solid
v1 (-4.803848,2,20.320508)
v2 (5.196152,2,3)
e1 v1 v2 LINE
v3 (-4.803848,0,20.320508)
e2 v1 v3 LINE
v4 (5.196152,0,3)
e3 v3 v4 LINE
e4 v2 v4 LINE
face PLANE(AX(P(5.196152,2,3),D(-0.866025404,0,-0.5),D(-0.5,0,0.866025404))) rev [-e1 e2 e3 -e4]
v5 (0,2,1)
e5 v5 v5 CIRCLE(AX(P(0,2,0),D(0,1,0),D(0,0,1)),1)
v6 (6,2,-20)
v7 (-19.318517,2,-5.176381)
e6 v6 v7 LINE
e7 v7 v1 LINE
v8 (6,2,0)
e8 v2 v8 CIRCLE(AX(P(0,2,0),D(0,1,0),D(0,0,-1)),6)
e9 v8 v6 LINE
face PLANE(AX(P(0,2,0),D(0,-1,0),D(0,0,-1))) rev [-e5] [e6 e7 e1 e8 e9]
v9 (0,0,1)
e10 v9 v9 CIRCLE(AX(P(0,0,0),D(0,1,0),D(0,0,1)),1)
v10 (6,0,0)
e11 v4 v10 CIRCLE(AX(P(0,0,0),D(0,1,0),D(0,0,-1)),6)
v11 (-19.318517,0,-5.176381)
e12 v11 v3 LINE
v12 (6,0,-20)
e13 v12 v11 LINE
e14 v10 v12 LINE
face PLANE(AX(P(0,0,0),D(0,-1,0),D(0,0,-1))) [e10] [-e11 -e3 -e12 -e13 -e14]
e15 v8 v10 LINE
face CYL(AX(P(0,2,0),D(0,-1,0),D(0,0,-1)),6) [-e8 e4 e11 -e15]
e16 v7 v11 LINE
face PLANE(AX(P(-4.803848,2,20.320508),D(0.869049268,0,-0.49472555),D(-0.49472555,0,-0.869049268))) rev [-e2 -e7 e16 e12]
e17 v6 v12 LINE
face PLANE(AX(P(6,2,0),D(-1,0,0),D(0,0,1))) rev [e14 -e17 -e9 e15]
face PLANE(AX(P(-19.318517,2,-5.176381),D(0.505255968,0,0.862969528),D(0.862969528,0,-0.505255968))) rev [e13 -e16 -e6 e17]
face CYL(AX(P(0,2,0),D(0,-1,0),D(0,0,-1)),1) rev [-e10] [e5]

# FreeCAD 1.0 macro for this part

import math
import FreeCAD as App
import Part
import Sketcher

V = App.Vector
Q = App.Units.Quantity

doc = App.newDocument("Part")
body = doc.addObject("PartDesign::Body", "Body")

# Sketch on XZ plane
sketch1 = body.newObject("Sketcher::SketchObject", "Sketch")
sketch1.AttachmentSupport = (doc.getObject("XZ_Plane"), [""])
sketch1.MapMode = "FlatFace"
sketch1.addGeometry([
    Part.LineSegment(V(6, 0, 0), V(6, -20, 0)),  # 0
    Part.LineSegment(V(6, -20, 0), V(-19.3, -5.2, 0)),  # 1
    Part.LineSegment(V(-19.3, -5.2, 0), V(-4.8, 20.3, 0)),  # 2
    Part.LineSegment(V(-4.8, 20.3, 0), V(5.2, 3, 0)),  # 3
    Part.ArcOfCircle(Part.Circle(V(0, 0, 0), V(0, 0, 1), 6), math.radians(0), math.radians(30)),  # 4
    Part.Circle(V(0, 0, 0), V(0, 0, 1), 1),  # 5
], False)
sketch1.addConstraint([
    Sketcher.Constraint("Coincident", 0, 2, 1, 1),
    Sketcher.Constraint("Coincident", 1, 2, 2, 1),
    Sketcher.Constraint("Coincident", 2, 2, 3, 1),
    Sketcher.Constraint("Tangent", 3, 2, 4, 2),
    Sketcher.Constraint("Tangent", 4, 1, 0, 1),
    Sketcher.Constraint("Vertical", 0),
    Sketcher.Constraint("Coincident", 4, 3, -1, 1),
    Sketcher.Constraint("Coincident", 5, 3, -1, 1),
    Sketcher.Constraint("Equal", 1, 2),
    Sketcher.Constraint("Diameter", 5, Q("2 mm")),
    Sketcher.Constraint("Radius", 4, Q("6 mm")),
    Sketcher.Constraint("DistanceY", 0, 2, 0, 1, Q("20 mm")),
    Sketcher.Constraint("Angle", 3, Q("-60 deg")),
    Sketcher.Constraint("Distance", 3, Q("20 mm")),
    Sketcher.Constraint("Distance", 1, Q("29.33883 mm")),
])
pad1 = body.newObject("PartDesign::Pad", "Pad")
pad1.Profile = sketch1
pad1.Length = 2
pad1.Reversed = True

doc.recompute()
